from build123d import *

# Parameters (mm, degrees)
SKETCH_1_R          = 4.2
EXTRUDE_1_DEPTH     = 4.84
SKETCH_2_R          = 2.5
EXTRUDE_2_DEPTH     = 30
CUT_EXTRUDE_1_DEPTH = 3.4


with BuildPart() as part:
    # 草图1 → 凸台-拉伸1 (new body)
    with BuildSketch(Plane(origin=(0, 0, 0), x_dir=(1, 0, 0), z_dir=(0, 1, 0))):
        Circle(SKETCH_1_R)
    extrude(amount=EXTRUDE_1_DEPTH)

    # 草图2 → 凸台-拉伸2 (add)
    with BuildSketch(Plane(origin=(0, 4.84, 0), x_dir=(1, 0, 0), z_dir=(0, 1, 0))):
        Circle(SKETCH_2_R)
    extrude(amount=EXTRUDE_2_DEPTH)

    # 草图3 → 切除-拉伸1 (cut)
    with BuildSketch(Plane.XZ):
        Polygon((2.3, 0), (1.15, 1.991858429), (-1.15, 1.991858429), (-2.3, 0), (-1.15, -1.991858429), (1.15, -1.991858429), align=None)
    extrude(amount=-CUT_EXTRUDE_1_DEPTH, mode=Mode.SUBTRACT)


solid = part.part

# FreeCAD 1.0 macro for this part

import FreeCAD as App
import Part
import Sketcher

V = App.Vector
Q = App.Units.Quantity


def add_polygon(sketch, points):
    """Adds a closed chain of lines whose ends are joined by coincident constraints."""
    first, n = sketch.GeometryCount, len(points)
    for a, b in zip(points, points[1:] + points[:1]):
        sketch.addGeometry(Part.LineSegment(App.Vector(*a, 0), App.Vector(*b, 0)), False)
    for i in range(n):
        sketch.addConstraint(Sketcher.Constraint("Coincident", first + i, 2, first + (i + 1) % n, 1))

doc = App.newDocument("Part")
params = doc.addObject("Spreadsheet::Sheet", "Params")
for row, (alias, value) in enumerate([
    ("sketch1_diameter", "8.4 mm"),
    ("pad1_length", "4.84 mm"),
    ("sketch2_diameter", "5 mm"),
    ("pad2_length", "30 mm"),
    ("sketch3_width", "2.3 mm"),
    ("sketch3_length", "2.3 mm"),
    ("pocket1_length", "3.4 mm"),
], start=1):
    params.set(f"A{row}", alias)
    params.set(f"B{row}", "=" + value)
    params.setAlias(f"B{row}", alias)

body = doc.addObject("PartDesign::Body", "Body")

# Sketch on XZ plane
sketch1 = body.newObject("Sketcher::SketchObject", "Sketch")
sketch1.AttachmentSupport = (doc.getObject("XZ_Plane"), [""])
sketch1.MapMode = "FlatFace"
sketch1.addGeometry(Part.Circle(V(0, 0, 0), V(0, 0, 1), 4.2), False)
sketch1.addConstraint([
    Sketcher.Constraint("Coincident", 0, 3, -1, 1),
    Sketcher.Constraint("Diameter", 0, 8.4),
])
sketch1.setExpression("Constraints[1]", "Params.sketch1_diameter")
pad1 = body.newObject("PartDesign::Pad", "Pad")
pad1.Profile = sketch1
pad1.setExpression("Length", "Params.pad1_length")
pad1.Reversed = True

# Sketch on XZ plane
sketch2 = body.newObject("Sketcher::SketchObject", "Sketch001")
sketch2.AttachmentSupport = (doc.getObject("XZ_Plane"), [""])
sketch2.MapMode = "FlatFace"
sketch2.AttachmentOffset = App.Placement(V(0, 0, -4.84), App.Rotation())
sketch2.addGeometry(Part.Circle(V(0, 0, 0), V(0, 0, 1), 2.5), False)
sketch2.addConstraint([
    Sketcher.Constraint("Coincident", 0, 3, -1, 1),
    Sketcher.Constraint("Diameter", 0, 5.0),
])
sketch2.setExpression("Constraints[1]", "Params.sketch2_diameter")
pad2 = body.newObject("PartDesign::Pad", "Pad001")
pad2.Profile = sketch2
pad2.setExpression("Length", "Params.pad2_length")
pad2.Reversed = True

# Sketch on XZ plane
sketch3 = body.newObject("Sketcher::SketchObject", "Sketch002")
sketch3.AttachmentSupport = (doc.getObject("XZ_Plane"), [""])
sketch3.MapMode = "FlatFace"
add_polygon(sketch3, [(2.3, 0), (1.1, 2), (-1.1, 2), (-2.3, 0), (-1.1, -2), (1.1, -2)])  # lines 0-5
sketch3.addConstraint([
    Sketcher.Constraint("Horizontal", 1),
    Sketcher.Constraint("Horizontal", 4),
    Sketcher.Constraint("Symmetric", 0, 2, 3, 2, -1, 1),
    Sketcher.Constraint("Symmetric", 2, 2, 5, 2, -1, 1),
    Sketcher.Constraint("PointOnObject", 2, 2, -1),
    Sketcher.Constraint("Parallel", 2, 5),
    Sketcher.Constraint("Vertical", 1, 2, 3, 2),
    Sketcher.Constraint("Angle", 0, Q("120 deg")),
    Sketcher.Constraint("DistanceX", 1, 2, 1, 1, 2.3),
    Sketcher.Constraint("Distance", 0, 2.3),
])
sketch3.setExpression("Constraints[14]", "Params.sketch3_width")
sketch3.setExpression("Constraints[15]", "Params.sketch3_length")
pocket1 = body.newObject("PartDesign::Pocket", "Pocket")
pocket1.Profile = sketch3
pocket1.setExpression("Length", "Params.pocket1_length")

doc.recompute()
